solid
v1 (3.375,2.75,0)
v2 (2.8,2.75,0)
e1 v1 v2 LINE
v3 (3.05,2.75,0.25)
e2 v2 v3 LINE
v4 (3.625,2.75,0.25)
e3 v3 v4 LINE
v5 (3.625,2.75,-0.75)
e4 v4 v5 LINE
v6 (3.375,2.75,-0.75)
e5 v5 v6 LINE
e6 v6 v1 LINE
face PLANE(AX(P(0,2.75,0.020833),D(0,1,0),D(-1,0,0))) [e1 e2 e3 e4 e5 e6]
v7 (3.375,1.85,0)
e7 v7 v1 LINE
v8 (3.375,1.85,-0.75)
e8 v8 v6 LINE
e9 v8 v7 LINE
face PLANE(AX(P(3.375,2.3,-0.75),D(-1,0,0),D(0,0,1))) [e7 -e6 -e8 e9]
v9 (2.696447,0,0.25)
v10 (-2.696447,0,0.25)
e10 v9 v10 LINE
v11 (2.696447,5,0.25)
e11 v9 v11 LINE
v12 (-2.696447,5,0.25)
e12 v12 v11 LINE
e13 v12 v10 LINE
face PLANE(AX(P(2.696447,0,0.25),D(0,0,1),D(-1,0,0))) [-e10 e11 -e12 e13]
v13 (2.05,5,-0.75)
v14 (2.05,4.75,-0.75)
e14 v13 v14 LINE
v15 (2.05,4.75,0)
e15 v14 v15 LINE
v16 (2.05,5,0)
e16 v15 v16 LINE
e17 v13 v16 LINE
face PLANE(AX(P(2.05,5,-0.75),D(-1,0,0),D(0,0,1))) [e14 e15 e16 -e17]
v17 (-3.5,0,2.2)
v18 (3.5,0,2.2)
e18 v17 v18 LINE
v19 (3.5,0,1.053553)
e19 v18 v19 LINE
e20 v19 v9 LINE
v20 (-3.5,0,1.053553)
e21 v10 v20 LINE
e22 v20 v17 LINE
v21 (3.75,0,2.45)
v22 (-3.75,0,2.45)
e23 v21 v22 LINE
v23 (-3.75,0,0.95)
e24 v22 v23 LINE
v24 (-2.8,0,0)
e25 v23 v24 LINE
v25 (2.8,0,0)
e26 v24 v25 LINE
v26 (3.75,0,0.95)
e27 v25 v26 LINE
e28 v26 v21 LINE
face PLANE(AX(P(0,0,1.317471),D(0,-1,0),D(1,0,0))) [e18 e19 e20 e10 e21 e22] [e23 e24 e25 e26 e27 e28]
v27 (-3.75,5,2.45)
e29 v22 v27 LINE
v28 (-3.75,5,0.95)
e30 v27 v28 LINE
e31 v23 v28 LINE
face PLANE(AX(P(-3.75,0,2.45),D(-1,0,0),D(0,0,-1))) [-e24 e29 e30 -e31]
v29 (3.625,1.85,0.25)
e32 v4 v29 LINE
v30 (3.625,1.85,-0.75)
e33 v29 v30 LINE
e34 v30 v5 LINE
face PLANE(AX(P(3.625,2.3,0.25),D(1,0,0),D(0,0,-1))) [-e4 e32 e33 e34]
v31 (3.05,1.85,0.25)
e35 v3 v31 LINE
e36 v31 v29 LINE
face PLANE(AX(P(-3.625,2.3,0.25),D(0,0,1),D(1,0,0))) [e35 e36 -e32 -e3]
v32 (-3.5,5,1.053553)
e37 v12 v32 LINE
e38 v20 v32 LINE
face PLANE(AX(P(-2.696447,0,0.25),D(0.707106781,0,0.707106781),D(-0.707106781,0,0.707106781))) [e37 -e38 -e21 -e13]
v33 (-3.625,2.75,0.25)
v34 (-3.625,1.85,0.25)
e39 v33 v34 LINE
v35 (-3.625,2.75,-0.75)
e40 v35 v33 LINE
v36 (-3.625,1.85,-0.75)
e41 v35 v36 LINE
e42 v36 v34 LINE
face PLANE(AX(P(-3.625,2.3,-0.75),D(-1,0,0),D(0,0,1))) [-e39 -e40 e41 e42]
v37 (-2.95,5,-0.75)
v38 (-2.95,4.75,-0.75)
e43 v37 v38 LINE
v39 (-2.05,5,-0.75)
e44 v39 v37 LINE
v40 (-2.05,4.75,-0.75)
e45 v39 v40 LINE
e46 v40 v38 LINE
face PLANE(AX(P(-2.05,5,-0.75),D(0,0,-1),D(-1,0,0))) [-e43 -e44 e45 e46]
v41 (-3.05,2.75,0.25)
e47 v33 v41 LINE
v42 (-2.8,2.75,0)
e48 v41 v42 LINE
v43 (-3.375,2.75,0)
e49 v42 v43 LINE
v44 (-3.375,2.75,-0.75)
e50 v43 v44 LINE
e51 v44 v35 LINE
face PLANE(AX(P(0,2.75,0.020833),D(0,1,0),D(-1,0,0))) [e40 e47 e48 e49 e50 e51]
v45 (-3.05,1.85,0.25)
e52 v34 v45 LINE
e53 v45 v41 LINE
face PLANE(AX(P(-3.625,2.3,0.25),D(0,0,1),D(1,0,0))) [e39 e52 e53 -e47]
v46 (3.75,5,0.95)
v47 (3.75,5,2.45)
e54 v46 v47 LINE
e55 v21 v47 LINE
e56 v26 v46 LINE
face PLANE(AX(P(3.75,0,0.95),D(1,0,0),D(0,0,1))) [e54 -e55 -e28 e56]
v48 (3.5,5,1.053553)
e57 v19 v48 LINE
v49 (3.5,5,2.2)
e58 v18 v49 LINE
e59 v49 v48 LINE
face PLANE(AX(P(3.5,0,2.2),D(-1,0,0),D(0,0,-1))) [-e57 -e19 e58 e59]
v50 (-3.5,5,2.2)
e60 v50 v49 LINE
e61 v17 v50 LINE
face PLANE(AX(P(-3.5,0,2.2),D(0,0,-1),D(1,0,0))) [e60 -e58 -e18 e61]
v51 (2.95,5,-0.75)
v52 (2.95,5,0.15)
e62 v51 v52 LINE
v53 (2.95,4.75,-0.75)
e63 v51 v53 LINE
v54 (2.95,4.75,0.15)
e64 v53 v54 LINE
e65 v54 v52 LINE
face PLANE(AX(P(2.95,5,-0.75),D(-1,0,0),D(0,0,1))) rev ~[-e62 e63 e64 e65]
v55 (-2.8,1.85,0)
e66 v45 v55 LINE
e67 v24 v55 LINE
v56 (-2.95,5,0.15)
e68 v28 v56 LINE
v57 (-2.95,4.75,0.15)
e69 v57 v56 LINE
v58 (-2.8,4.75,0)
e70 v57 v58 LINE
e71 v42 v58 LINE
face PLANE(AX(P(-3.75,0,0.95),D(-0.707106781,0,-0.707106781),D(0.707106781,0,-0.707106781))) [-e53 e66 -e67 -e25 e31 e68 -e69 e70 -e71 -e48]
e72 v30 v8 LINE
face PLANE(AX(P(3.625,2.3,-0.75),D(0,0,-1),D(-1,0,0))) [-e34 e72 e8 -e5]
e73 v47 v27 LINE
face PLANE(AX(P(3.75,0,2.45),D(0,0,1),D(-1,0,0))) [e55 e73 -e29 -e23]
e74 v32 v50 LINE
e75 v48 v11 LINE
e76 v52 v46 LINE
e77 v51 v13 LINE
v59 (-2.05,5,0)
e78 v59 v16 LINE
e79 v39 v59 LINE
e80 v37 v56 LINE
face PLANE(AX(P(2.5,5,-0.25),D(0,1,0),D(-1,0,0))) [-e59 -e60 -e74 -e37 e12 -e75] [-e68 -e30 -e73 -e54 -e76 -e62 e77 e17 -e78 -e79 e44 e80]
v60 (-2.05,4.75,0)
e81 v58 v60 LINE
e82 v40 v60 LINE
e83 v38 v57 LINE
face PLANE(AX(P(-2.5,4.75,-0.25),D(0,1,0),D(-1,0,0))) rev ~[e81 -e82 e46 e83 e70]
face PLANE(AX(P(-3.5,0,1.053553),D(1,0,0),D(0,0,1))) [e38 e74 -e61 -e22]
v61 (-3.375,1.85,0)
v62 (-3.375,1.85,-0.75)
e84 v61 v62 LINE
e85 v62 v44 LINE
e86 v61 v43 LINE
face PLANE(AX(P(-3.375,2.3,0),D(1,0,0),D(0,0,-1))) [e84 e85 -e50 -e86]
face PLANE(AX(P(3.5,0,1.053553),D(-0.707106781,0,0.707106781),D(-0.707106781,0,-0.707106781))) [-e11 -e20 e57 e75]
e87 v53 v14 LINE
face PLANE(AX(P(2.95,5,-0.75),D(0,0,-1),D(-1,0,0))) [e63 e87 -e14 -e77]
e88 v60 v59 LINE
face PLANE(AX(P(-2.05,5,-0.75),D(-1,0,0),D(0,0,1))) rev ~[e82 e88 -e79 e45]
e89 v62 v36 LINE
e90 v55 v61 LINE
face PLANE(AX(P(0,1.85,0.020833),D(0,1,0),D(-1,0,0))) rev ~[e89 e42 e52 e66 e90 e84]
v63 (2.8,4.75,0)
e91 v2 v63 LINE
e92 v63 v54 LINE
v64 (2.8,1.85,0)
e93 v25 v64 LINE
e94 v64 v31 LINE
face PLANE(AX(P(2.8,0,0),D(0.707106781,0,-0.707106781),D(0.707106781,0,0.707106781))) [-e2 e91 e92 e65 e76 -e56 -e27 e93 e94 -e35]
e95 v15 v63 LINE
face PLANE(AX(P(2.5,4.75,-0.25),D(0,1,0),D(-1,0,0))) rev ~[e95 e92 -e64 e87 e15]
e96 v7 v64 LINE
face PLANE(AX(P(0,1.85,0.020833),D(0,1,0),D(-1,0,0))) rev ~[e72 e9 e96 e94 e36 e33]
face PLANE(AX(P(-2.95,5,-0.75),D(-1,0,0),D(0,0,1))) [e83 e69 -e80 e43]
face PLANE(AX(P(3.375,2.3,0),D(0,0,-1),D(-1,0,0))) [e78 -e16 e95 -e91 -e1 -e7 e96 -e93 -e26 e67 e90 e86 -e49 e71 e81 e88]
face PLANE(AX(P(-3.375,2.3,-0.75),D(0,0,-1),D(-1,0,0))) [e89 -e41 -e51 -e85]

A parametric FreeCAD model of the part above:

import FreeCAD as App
import Part
import Sketcher
from FreeCAD import Vector


def add_polygon(sketch, points):
    """Adds a closed chain of lines whose ends are joined by coincident constraints."""
    first, n = sketch.GeometryCount, len(points)
    for a, b in zip(points, points[1:] + points[:1]):
        sketch.addGeometry(Part.LineSegment(App.Vector(*a, 0), App.Vector(*b, 0)), False)
    for i in range(n):
        sketch.addConstraint(Sketcher.Constraint("Coincident", first + i, 2, first + (i + 1) % n, 1))

doc = App.newDocument("Part")
params = doc.addObject("Spreadsheet::Sheet", "Params")
for row, (alias, value) in enumerate([
    ("sketch1_width", "7 mm"),
    ("sketch1_width2", "5.6 mm"),
    ("sketch1_width3", "7.5 mm"),
    ("sketch1_height", "1.5 mm"),
    ("pad1_length", "5 mm"),
    ("sketch2_height", "1 mm"),
    ("sketch2_width", "0.25 mm"),
    ("sketch2_height2", "0.75 mm"),
    ("pad2_length", "0.9 mm"),
    ("sketch3_height", "1 mm"),
    ("sketch3_width", "0.9 mm"),
    ("pad3_length", "0.25 mm"),
], start=1):
    params.set(f"A{row}", alias)
    params.set(f"B{row}", "=" + value)
    params.setAlias(f"B{row}", alias)

body = doc.addObject("PartDesign::Body", "Body")

# Sketch on XZ plane
sketch1 = body.newObject("Sketcher::SketchObject", "Sketch")
sketch1.AttachmentSupport = (doc.getObject("XZ_Plane"), [""])
sketch1.MapMode = "FlatFace"
add_polygon(sketch1, [(-2.8, 0), (2.8, 0), (3.8, 0.9), (3.8, 2.5), (-3.8, 2.5), (-3.8, 0.9)])  # lines 0-5
add_polygon(sketch1, [(-3.5, 2.2), (3.5, 2.2), (3.5, 1.1), (2.7, 0.3), (-2.7, 0.3), (-3.5, 1.1)])  # lines 6-11
sketch1.addConstraint(Sketcher.Constraint("Horizontal", 0))
sketch1.addConstraint(Sketcher.Constraint("Vertical", 2))
sketch1.addConstraint(Sketcher.Constraint("Horizontal", 3))
sketch1.addConstraint(Sketcher.Constraint("Vertical", 4))
sketch1.addConstraint(Sketcher.Constraint("Horizontal", 6))
sketch1.addConstraint(Sketcher.Constraint("Vertical", 7))
sketch1.addConstraint(Sketcher.Constraint("Horizontal", 9))
sketch1.addConstraint(Sketcher.Constraint("Vertical", 11))
sketch1.addConstraint(Sketcher.Constraint("Symmetric", 0, 2, 5, 2, -1, 1))
sketch1.addConstraint(Sketcher.Constraint("Symmetric", 1, 2, 4, 2, -2))
sketch1.addConstraint(Sketcher.Constraint("Symmetric", 7, 2, 10, 2, -2))
sketch1.addConstraint(Sketcher.Constraint("Perpendicular", 1, 5))
sketch1.addConstraint(Sketcher.Constraint("Perpendicular", 5, 8))
sketch1.addConstraint(Sketcher.Constraint("Perpendicular", 8, 10))
sketch1.addConstraint(Sketcher.Constraint("DistanceX", 6, 1, 6, 2, 7.0))
sketch1.addConstraint(Sketcher.Constraint("DistanceX", 0, 1, 0, 2, 5.6))
sketch1.addConstraint(Sketcher.Constraint("DistanceX", 3, 2, 3, 1, 7.5))
sketch1.addConstraint(Sketcher.Constraint("DistanceY", 2, 1, 2, 2, 1.5))
sketch1.addConstraint(Sketcher.Constraint("DistanceY", -1, 1, 6, 2, 2.2))
sketch1.addConstraint(Sketcher.Constraint("DistanceY", 8, 2, 1, 2, 0.7))
sketch1.addConstraint(Sketcher.Constraint("DistanceX", 9, 2, 9, 1, 5.392893))
sketch1.setExpression("Constraints[26]", "Params.sketch1_width")
sketch1.setExpression("Constraints[27]", "Params.sketch1_width2")
sketch1.setExpression("Constraints[28]", "Params.sketch1_width3")
sketch1.setExpression("Constraints[29]", "Params.sketch1_height")
pad1 = body.newObject("PartDesign::Pad", "Pad")
pad1.Profile = sketch1
pad1.setExpression("Length", "Params.pad1_length")
pad1.Reversed = True

# Sketch on XZ plane
sketch2 = body.newObject("Sketcher::SketchObject", "Sketch001")
sketch2.AttachmentSupport = (doc.getObject("XZ_Plane"), [""])
sketch2.MapMode = "FlatFace"
sketch2.AttachmentOffset = App.Placement(Vector(0, 0, -2.3), App.Rotation())
add_polygon(sketch2, [(3.62, 0.25), (3.62, -0.75), (3.38, -0.75), (3.38, 0), (-3.38, 0), (-3.38, -0.75), (-3.62, -0.75), (-3.62, 0.25)])  # lines 0-7
sketch2.addConstraint(Sketcher.Constraint("Vertical", 0))
sketch2.addConstraint(Sketcher.Constraint("Horizontal", 1))
sketch2.addConstraint(Sketcher.Constraint("Vertical", 2))
sketch2.addConstraint(Sketcher.Constraint("Horizontal", 3))
sketch2.addConstraint(Sketcher.Constraint("Vertical", 4))
sketch2.addConstraint(Sketcher.Constraint("Horizontal", 5))
sketch2.addConstraint(Sketcher.Constraint("Vertical", 6))
sketch2.addConstraint(Sketcher.Constraint("Horizontal", 7))
sketch2.addConstraint(Sketcher.Constraint("Symmetric", 2, 2, 3, 2, -1, 1))
sketch2.addConstraint(Sketcher.Constraint("Symmetric", 0, 2, 5, 2, -2))
sketch2.addConstraint(Sketcher.Constraint("DistanceY", 0, 2, 0, 1, 1.0))
sketch2.addConstraint(Sketcher.Constraint("DistanceX", 3, 2, 0, 2, 7.0))
sketch2.addConstraint(Sketcher.Constraint("DistanceX", 1, 2, 1, 1, 0.25))
sketch2.addConstraint(Sketcher.Constraint("DistanceY", 2, 1, 2, 2, 0.75))
sketch2.setExpression("Constraints[18]", "Params.sketch2_height")
sketch2.setExpression("Constraints[20]", "Params.sketch2_width")
sketch2.setExpression("Constraints[21]", "Params.sketch2_height2")
pad2 = body.newObject("PartDesign::Pad", "Pad001")
pad2.Profile = sketch2
pad2.setExpression("Length", "Params.pad2_length")
pad2.Midplane = True

# Sketch on XZ plane
sketch3 = body.newObject("Sketcher::SketchObject", "Sketch002")
sketch3.AttachmentSupport = (doc.getObject("XZ_Plane"), [""])
sketch3.MapMode = "FlatFace"
sketch3.AttachmentOffset = App.Placement(Vector(0, 0, -5), App.Rotation())
add_polygon(sketch3, [(3, 0.3), (3, -0.7), (2, -0.7), (2, 0.3)])  # lines 0-3
add_polygon(sketch3, [(-2, 0.3), (-2, -0.7), (-3, -0.7), (-3, 0.3)])  # lines 4-7
sketch3.addConstraint(Sketcher.Constraint("Vertical", 0))
sketch3.addConstraint(Sketcher.Constraint("Horizontal", 1))
sketch3.addConstraint(Sketcher.Constraint("Vertical", 2))
sketch3.addConstraint(Sketcher.Constraint("Horizontal", 3))
sketch3.addConstraint(Sketcher.Constraint("Vertical", 4))
sketch3.addConstraint(Sketcher.Constraint("Horizontal", 5))
sketch3.addConstraint(Sketcher.Constraint("Vertical", 6))
sketch3.addConstraint(Sketcher.Constraint("Horizontal", 7))
sketch3.addConstraint(Sketcher.Constraint("Symmetric", 1, 2, 4, 2, -2))
sketch3.addConstraint(Sketcher.Constraint("Symmetric", 3, 2, 6, 2, -2))
sketch3.addConstraint(Sketcher.Constraint("DistanceY", 0, 2, 0, 1, 1.0))
sketch3.addConstraint(Sketcher.Constraint("DistanceX", 1, 2, 1, 1, 0.9))
sketch3.addConstraint(Sketcher.Constraint("DistanceX", 4, 2, 0, 2, 5.0))
sketch3.addConstraint(Sketcher.Constraint("DistanceY", 0, 2, -1, 1, 0.75))
sketch3.setExpression("Constraints[18]", "Params.sketch3_height")
sketch3.setExpression("Constraints[19]", "Params.sketch3_width")
pad3 = body.newObject("PartDesign::Pad", "Pad002")
pad3.Profile = sketch3
pad3.setExpression("Length", "Params.pad3_length")

doc.recompute()
